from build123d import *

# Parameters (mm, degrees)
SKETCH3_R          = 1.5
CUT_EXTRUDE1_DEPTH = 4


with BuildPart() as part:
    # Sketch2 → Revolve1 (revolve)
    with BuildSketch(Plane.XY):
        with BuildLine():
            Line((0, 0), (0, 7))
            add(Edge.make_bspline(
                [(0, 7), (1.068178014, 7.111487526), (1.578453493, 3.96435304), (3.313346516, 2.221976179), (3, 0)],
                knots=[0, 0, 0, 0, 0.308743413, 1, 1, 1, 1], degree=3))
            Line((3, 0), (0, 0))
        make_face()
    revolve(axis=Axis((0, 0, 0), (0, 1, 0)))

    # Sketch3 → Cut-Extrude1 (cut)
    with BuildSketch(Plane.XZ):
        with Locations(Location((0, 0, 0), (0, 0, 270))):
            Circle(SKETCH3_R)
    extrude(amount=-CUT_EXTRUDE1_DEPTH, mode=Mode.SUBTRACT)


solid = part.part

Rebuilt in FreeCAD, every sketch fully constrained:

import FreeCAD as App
import Part
import Sketcher
Q = App.Units.Quantity

doc = App.newDocument("Part")
body = doc.addObject("PartDesign::Body", "Body")

sketch1 = body.newObject("Sketcher::SketchObject", "Sketch")
sketch1.AttachmentSupport = (doc.getObject("XY_Plane"), [""])
sketch1.MapMode = "FlatFace"
sketch1.addGeometry([
    Part.LineSegment(App.Vector(0, 7, 0), App.Vector(0, 0, 0)),
    Part.LineSegment(App.Vector(0, 0, 0), App.Vector(3, 0, 0)),
    Part.BSplineCurve([App.Vector(0, 7, 0), App.Vector(1.068178, 7.111488, 0), App.Vector(1.578453, 3.964353, 0), App.Vector(3.313347, 2.221976, 0), App.Vector(3, 0, 0)], [4, 1, 4], [0, 0.308743413, 1], False, 3, [1, 1, 1, 1, 1], False),
], False)
sketch1.addConstraint([
    Sketcher.Constraint("Block", 2),
    Sketcher.Constraint("Coincident", 0, 2, 1, 1),
    Sketcher.Constraint("Coincident", 1, 2, 2, 2),
    Sketcher.Constraint("Coincident", 2, 1, 0, 1),
    Sketcher.Constraint("Vertical", 0),
    Sketcher.Constraint("Horizontal", 1),
])
revolution = body.newObject("PartDesign::Revolution", "Revolution")
revolution.Profile = sketch1
revolution.ReferenceAxis = (sketch1, ["V_Axis"])
revolution.Angle = 360

sketch2 = body.newObject("Sketcher::SketchObject", "Sketch001")
sketch2.AttachmentSupport = (doc.getObject("XZ_Plane"), [""])
sketch2.MapMode = "FlatFace"
sketch2.addGeometry(Part.Circle(App.Vector(0, 0, 0), App.Vector(0, 0, 1), 1.5), False)
sketch2.addConstraint([
    Sketcher.Constraint("Coincident", 0, 3, -1, 1),
    Sketcher.Constraint("Diameter", 0, Q("3 mm")),
])
pocket1 = body.newObject("PartDesign::Pocket", "Pocket")
pocket1.Profile = sketch2
pocket1.Length = 4

doc.recompute()
